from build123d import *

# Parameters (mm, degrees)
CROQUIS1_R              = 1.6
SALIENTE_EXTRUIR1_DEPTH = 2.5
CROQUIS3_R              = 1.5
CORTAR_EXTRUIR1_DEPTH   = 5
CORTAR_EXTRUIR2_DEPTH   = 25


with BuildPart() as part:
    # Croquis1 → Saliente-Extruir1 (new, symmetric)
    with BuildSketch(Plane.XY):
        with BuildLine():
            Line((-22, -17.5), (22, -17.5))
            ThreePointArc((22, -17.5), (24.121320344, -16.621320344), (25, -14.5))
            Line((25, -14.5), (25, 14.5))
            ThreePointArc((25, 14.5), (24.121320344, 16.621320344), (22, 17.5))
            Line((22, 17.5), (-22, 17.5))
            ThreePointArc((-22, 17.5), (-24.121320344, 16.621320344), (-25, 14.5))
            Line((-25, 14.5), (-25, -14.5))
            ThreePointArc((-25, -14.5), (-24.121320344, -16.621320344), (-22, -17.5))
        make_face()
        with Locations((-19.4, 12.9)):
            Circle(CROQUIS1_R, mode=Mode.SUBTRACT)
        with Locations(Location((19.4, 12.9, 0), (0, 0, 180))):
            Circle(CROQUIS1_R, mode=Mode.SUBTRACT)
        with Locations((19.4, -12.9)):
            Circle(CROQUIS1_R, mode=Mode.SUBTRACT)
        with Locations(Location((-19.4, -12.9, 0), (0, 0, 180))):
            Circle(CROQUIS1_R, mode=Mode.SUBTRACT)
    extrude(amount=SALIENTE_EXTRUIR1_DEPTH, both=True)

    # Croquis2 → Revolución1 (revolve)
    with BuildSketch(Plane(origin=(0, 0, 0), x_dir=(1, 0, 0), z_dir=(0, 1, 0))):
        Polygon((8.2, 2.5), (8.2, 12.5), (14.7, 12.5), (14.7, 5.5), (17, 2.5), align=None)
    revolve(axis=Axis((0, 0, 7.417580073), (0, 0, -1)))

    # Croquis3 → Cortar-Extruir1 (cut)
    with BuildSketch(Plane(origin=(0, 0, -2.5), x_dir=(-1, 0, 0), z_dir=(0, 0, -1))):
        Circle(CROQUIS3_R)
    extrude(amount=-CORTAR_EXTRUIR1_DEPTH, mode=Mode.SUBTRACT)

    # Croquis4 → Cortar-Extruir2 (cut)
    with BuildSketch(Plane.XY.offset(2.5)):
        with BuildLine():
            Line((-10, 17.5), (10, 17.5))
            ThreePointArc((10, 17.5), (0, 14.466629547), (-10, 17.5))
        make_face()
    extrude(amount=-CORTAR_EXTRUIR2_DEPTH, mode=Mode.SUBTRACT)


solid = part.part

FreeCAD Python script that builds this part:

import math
import FreeCAD as App
import Part
import Sketcher

V = App.Vector

doc = App.newDocument("Part")
body = doc.addObject("PartDesign::Body", "Body")

# Sketch on XY plane
sketch1 = doc.addObject("Sketcher::SketchObject", "Sketch")
body.addObject(sketch1)
sketch1.AttachmentSupport = (doc.XY_Plane, [""])
sketch1.MapMode = "FlatFace"
sketch1.addGeometry(Part.LineSegment(V(-22, -17.5, 0), V(22, -17.5, 0)), False)
sketch1.addGeometry(Part.ArcOfCircle(Part.Circle(V(22, -14.5, 0), V(0, 0, 1), 3), math.radians(-90), math.radians(0)), False)
sketch1.addGeometry(Part.LineSegment(V(25, -14.5, 0), V(25, 14.5, 0)), False)
sketch1.addGeometry(Part.ArcOfCircle(Part.Circle(V(22, 14.5, 0), V(0, 0, 1), 3), math.radians(0), math.radians(90)), False)
sketch1.addGeometry(Part.LineSegment(V(22, 17.5, 0), V(-22, 17.5, 0)), False)
sketch1.addGeometry(Part.ArcOfCircle(Part.Circle(V(-22, 14.5, 0), V(0, 0, 1), 3), math.radians(90), math.radians(180)), False)
sketch1.addGeometry(Part.LineSegment(V(-25, 14.5, 0), V(-25, -14.5, 0)), False)
sketch1.addGeometry(Part.ArcOfCircle(Part.Circle(V(-22, -14.5, 0), V(0, 0, 1), 3), math.radians(180), math.radians(270)), False)
sketch1.addGeometry(Part.Circle(V(-19.4, -12.9, 0), V(0, 0, 1), 1.6), False)
sketch1.addGeometry(Part.Circle(V(19.4, -12.9, 0), V(0, 0, 1), 1.6), False)
sketch1.addGeometry(Part.Circle(V(-19.4, 12.9, 0), V(0, 0, 1), 1.6), False)
sketch1.addGeometry(Part.Circle(V(19.4, 12.9, 0), V(0, 0, 1), 1.6), False)
sketch1.addConstraint(Sketcher.Constraint("Tangent", 0, 2, 1, 1))
sketch1.addConstraint(Sketcher.Constraint("Tangent", 1, 2, 2, 1))
sketch1.addConstraint(Sketcher.Constraint("Tangent", 2, 2, 3, 1))
sketch1.addConstraint(Sketcher.Constraint("Tangent", 3, 2, 4, 1))
sketch1.addConstraint(Sketcher.Constraint("Tangent", 4, 2, 5, 1))
sketch1.addConstraint(Sketcher.Constraint("Tangent", 5, 2, 6, 1))
sketch1.addConstraint(Sketcher.Constraint("Tangent", 6, 2, 7, 1))
sketch1.addConstraint(Sketcher.Constraint("Tangent", 7, 2, 0, 1))
sketch1.addConstraint(Sketcher.Constraint("Horizontal", 0))
sketch1.addConstraint(Sketcher.Constraint("Vertical", 2))
sketch1.addConstraint(Sketcher.Constraint("Horizontal", 4))
sketch1.addConstraint(Sketcher.Constraint("Vertical", 6))
sketch1.addConstraint(Sketcher.Constraint("Equal", 1, 3))
sketch1.addConstraint(Sketcher.Constraint("Equal", 3, 5))
sketch1.addConstraint(Sketcher.Constraint("Equal", 5, 7))
sketch1.addConstraint(Sketcher.Constraint("Equal", 8, 9))
sketch1.addConstraint(Sketcher.Constraint("Equal", 9, 10))
sketch1.addConstraint(Sketcher.Constraint("Equal", 10, 11))
sketch1.addConstraint(Sketcher.Constraint("Symmetric", 1, 3, 5, 3, -1, 1))
sketch1.addConstraint(Sketcher.Constraint("Symmetric", 9, 3, 10, 3, -1, 1))
sketch1.addConstraint(Sketcher.Constraint("Symmetric", 8, 3, 11, 3, -1, 1))
sketch1.addConstraint(Sketcher.Constraint("Symmetric", 8, 3, 9, 3, -2))
sketch1.addConstraint(Sketcher.Constraint("Radius", 1, 3.0))
sketch1.addConstraint(Sketcher.Constraint("Diameter", 8, 3.2))
sketch1.addConstraint(Sketcher.Constraint("DistanceX", 0, 1, 0, 2, 44.0))
sketch1.addConstraint(Sketcher.Constraint("DistanceY", 2, 1, 2, 2, 29.0))
sketch1.addConstraint(Sketcher.Constraint("DistanceX", 8, 3, -1, 1, 19.4))
sketch1.addConstraint(Sketcher.Constraint("DistanceY", 8, 3, -1, 1, 12.9))
pad1 = doc.addObject("PartDesign::Pad", "Pad")
body.addObject(pad1)
pad1.Profile = sketch1
pad1.Length = 5
pad1.Midplane = True

# Sketch on XZ plane
sketch2 = doc.addObject("Sketcher::SketchObject", "Sketch001")
body.addObject(sketch2)
sketch2.AttachmentSupport = (doc.XZ_Plane, [""])
sketch2.MapMode = "FlatFace"
sketch2.addGeometry(Part.LineSegment(V(8.2, -12.5, 0), V(8.2, -2.5, 0)), False)
sketch2.addGeometry(Part.LineSegment(V(8.2, -2.5, 0), V(17, -2.5, 0)), False)
sketch2.addGeometry(Part.LineSegment(V(17, -2.5, 0), V(14.7, -5.5, 0)), False)
sketch2.addGeometry(Part.LineSegment(V(14.7, -5.5, 0), V(14.7, -12.5, 0)), False)
sketch2.addGeometry(Part.LineSegment(V(14.7, -12.5, 0), V(8.2, -12.5, 0)), False)
sketch2.addConstraint(Sketcher.Constraint("Coincident", 0, 2, 1, 1))
sketch2.addConstraint(Sketcher.Constraint("Coincident", 1, 2, 2, 1))
sketch2.addConstraint(Sketcher.Constraint("Coincident", 2, 2, 3, 1))
sketch2.addConstraint(Sketcher.Constraint("Coincident", 3, 2, 4, 1))
sketch2.addConstraint(Sketcher.Constraint("Coincident", 4, 2, 0, 1))
sketch2.addConstraint(Sketcher.Constraint("Vertical", 0))
sketch2.addConstraint(Sketcher.Constraint("Horizontal", 1))
sketch2.addConstraint(Sketcher.Constraint("Vertical", 3))
sketch2.addConstraint(Sketcher.Constraint("Horizontal", 4))
sketch2.addConstraint(Sketcher.Constraint("DistanceY", 0, 1, 0, 2, 10.0))
sketch2.addConstraint(Sketcher.Constraint("DistanceY", 3, 2, 3, 1, 7.0))
sketch2.addConstraint(Sketcher.Constraint("DistanceX", 1, 1, 1, 2, 8.8))
sketch2.addConstraint(Sketcher.Constraint("DistanceX", 4, 2, 4, 1, 6.5))
sketch2.addConstraint(Sketcher.Constraint("DistanceX", -1, 1, 1, 2, 17.0))
sketch2.addConstraint(Sketcher.Constraint("DistanceY", 0, 2, -1, 1, 2.5))
revolution = doc.addObject("PartDesign::Revolution", "Revolution")
body.addObject(revolution)
revolution.Profile = sketch2
revolution.ReferenceAxis = (sketch2, ["V_Axis"])
revolution.Angle = 360

# Sketch on XY plane
sketch3 = doc.addObject("Sketcher::SketchObject", "Sketch002")
body.addObject(sketch3)
sketch3.AttachmentSupport = (doc.XY_Plane, [""])
sketch3.MapMode = "FlatFace"
sketch3.AttachmentOffset = App.Placement(V(0, 0, -2.5), App.Rotation())
sketch3.addGeometry(Part.Circle(V(0, 0, 0), V(0, 0, 1), 1.5), False)
sketch3.addConstraint(Sketcher.Constraint("Coincident", 0, 3, -1, 1))
sketch3.addConstraint(Sketcher.Constraint("Diameter", 0, 3.0))
pocket1 = doc.addObject("PartDesign::Pocket", "Pocket")
body.addObject(pocket1)
pocket1.Profile = sketch3
pocket1.Length = 5
pocket1.Reversed = True

# Sketch on XY plane
sketch4 = doc.addObject("Sketcher::SketchObject", "Sketch003")
body.addObject(sketch4)
sketch4.AttachmentSupport = (doc.XY_Plane, [""])
sketch4.MapMode = "FlatFace"
sketch4.AttachmentOffset = App.Placement(V(0, 0, 2.5), App.Rotation())
sketch4.addGeometry(Part.LineSegment(V(10, 18, 0), V(-10, 18, 0)), False)
sketch4.addGeometry(Part.ArcOfCircle(Part.Circle(V(0, 32, 0), V(0, 0, 1), 18), math.radians(-124), math.radians(-56)), False)
sketch4.addConstraint(Sketcher.Constraint("Coincident", 0, 1, 1, 2))
sketch4.addConstraint(Sketcher.Constraint("Coincident", 1, 1, 0, 2))
sketch4.addConstraint(Sketcher.Constraint("Horizontal", 0))
sketch4.addConstraint(Sketcher.Constraint("PointOnObject", 1, 3, -2))
sketch4.addConstraint(Sketcher.Constraint("Radius", 1, 18.0))
sketch4.addConstraint(Sketcher.Constraint("DistanceX", 0, 2, 0, 1, 20.0))
sketch4.addConstraint(Sketcher.Constraint("DistanceY", -1, 1, 0, 1, 17.5))
pocket2 = doc.addObject("PartDesign::Pocket", "Pocket001")
body.addObject(pocket2)
pocket2.Profile = sketch4
pocket2.Length = 25

doc.recompute()
